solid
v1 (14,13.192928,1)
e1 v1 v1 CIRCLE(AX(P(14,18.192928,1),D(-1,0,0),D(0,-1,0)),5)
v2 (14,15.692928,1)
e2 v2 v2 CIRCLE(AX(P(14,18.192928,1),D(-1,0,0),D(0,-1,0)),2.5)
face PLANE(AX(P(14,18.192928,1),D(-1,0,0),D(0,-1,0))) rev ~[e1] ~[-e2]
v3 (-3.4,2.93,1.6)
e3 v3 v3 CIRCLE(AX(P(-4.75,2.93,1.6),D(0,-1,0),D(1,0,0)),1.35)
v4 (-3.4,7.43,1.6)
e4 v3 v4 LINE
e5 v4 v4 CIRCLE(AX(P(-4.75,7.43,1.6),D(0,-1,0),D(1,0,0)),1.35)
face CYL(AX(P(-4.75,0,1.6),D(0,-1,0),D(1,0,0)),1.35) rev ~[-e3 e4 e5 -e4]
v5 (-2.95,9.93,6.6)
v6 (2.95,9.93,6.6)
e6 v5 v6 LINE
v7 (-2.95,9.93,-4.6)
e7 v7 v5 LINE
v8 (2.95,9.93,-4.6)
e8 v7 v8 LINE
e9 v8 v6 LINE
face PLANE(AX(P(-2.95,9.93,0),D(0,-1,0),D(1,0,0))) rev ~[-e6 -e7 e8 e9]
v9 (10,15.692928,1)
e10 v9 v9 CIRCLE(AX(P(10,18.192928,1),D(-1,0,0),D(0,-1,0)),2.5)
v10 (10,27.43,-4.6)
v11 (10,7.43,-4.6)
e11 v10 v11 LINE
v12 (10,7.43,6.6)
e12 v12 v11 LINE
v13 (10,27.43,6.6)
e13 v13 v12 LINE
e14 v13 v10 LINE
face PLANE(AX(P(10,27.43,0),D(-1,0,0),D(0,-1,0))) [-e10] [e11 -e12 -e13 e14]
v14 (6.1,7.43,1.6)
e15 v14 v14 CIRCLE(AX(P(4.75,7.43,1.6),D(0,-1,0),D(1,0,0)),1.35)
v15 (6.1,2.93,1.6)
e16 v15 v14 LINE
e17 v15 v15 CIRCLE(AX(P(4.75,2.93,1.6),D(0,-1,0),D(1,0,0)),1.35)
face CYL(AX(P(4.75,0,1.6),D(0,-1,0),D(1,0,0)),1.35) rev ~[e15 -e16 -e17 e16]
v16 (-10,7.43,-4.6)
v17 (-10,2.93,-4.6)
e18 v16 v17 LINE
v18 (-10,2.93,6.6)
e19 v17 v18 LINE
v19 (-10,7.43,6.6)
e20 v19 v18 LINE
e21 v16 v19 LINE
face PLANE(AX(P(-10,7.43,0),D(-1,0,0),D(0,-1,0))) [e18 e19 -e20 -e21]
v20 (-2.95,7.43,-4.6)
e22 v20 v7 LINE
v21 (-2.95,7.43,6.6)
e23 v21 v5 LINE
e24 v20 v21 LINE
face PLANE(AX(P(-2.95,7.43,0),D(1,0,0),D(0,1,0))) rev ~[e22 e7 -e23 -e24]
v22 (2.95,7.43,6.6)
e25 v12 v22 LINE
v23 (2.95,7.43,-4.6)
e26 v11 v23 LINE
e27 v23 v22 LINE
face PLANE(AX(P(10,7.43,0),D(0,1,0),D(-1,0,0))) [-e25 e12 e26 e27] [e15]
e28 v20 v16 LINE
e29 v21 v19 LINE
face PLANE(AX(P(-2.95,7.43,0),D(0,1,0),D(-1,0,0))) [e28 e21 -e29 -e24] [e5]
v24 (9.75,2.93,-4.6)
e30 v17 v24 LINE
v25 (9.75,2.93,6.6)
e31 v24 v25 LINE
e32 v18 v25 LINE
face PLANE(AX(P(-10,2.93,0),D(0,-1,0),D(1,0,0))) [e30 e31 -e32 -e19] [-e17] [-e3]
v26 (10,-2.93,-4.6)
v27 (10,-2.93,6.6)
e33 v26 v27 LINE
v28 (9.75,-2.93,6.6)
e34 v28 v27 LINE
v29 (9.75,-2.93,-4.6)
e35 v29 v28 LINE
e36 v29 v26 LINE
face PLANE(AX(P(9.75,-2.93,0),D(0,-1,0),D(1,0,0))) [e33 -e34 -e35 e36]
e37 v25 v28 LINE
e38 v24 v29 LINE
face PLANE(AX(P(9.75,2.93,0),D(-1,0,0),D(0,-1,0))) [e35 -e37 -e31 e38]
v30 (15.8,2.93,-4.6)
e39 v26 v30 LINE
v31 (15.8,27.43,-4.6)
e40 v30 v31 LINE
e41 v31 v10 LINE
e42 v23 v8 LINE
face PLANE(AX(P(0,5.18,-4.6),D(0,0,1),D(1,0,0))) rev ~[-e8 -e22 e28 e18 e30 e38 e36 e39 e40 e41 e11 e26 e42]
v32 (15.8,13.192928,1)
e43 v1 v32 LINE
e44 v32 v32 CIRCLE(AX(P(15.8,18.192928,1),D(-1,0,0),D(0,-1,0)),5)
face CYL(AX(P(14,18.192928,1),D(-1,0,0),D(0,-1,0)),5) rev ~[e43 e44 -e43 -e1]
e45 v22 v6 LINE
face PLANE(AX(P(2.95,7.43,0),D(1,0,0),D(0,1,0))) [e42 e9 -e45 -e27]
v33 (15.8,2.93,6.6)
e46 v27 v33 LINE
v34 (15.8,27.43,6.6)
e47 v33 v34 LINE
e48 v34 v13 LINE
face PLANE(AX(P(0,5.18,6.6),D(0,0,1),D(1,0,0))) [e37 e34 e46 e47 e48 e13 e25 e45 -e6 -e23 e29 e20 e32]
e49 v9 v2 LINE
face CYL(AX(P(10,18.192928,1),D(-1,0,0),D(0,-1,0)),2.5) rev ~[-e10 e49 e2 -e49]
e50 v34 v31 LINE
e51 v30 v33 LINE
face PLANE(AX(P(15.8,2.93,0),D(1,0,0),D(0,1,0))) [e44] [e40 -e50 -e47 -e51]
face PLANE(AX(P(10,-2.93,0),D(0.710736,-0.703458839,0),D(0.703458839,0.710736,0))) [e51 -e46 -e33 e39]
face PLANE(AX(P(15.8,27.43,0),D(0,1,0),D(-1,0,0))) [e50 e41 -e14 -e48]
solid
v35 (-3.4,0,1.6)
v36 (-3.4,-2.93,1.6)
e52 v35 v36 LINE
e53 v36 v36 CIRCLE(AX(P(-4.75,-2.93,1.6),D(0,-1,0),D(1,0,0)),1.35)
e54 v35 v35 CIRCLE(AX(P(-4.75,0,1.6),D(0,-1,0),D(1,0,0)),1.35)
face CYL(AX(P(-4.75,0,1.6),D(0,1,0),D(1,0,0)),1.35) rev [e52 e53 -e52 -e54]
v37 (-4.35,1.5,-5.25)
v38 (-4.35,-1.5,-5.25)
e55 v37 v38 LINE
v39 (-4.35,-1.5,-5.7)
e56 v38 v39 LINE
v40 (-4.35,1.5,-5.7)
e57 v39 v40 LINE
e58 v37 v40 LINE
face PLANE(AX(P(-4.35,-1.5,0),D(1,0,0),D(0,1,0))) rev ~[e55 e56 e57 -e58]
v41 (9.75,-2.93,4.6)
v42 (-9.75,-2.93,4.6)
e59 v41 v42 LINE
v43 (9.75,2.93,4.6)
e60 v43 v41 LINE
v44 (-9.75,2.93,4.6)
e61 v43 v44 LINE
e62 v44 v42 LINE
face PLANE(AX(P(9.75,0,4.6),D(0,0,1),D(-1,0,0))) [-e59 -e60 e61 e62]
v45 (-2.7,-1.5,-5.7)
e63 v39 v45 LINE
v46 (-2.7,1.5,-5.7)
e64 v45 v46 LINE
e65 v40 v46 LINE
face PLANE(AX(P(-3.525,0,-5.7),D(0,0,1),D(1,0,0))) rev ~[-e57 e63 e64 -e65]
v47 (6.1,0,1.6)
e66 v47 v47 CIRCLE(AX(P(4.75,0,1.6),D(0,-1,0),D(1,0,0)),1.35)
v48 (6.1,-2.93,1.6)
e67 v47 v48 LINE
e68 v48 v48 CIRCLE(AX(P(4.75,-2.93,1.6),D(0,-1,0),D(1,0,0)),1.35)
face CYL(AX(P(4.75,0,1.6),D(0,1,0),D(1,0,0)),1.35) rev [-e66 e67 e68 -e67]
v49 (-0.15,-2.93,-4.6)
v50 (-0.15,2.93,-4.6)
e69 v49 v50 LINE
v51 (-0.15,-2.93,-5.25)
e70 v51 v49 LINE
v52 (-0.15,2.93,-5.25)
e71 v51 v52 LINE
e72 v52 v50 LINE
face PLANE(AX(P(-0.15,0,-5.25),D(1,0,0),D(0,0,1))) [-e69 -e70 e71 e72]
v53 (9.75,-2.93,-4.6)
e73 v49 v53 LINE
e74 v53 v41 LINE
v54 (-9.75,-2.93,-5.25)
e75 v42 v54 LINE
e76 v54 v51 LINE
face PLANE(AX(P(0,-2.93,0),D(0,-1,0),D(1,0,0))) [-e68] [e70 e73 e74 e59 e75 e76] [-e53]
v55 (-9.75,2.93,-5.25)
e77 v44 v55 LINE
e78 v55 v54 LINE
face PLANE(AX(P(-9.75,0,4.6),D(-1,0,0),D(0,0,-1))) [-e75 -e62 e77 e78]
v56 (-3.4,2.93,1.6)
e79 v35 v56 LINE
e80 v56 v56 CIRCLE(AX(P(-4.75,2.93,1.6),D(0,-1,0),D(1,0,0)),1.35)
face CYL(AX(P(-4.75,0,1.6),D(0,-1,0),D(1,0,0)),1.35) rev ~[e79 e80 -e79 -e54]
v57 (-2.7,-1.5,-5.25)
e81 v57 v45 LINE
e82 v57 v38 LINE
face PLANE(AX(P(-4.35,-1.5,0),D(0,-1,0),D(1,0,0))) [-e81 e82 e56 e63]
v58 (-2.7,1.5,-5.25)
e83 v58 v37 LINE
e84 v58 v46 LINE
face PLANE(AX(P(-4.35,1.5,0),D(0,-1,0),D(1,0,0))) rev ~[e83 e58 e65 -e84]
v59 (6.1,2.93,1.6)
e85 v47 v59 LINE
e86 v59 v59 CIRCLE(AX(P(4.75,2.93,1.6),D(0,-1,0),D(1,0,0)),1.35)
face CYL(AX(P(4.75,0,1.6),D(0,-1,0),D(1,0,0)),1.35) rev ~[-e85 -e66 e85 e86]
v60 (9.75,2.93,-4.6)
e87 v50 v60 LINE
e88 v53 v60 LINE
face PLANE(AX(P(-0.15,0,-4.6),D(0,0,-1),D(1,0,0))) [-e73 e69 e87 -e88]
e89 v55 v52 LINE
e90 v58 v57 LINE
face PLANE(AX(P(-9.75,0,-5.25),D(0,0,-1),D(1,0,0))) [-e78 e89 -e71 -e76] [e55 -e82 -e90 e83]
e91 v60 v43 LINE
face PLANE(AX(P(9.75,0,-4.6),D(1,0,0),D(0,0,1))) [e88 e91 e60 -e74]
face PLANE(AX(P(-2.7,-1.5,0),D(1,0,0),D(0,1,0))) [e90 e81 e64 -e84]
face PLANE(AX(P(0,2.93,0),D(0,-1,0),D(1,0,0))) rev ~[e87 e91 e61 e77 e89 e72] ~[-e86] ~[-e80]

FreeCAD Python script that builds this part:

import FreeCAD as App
import Part
import Sketcher
from FreeCAD import Vector
Q = App.Units.Quantity


def add_polygon(sketch, points):
    """Adds a closed chain of lines whose ends are joined by coincident constraints."""
    first, n = sketch.GeometryCount, len(points)
    for a, b in zip(points, points[1:] + points[:1]):
        sketch.addGeometry(Part.LineSegment(App.Vector(*a, 0), App.Vector(*b, 0)), False)
    for i in range(n):
        sketch.addConstraint(Sketcher.Constraint("Coincident", first + i, 2, first + (i + 1) % n, 1))

doc = App.newDocument("Part")
body = doc.addObject("PartDesign::Body", "Body")

# Sketch on XZ plane
sketch1 = body.newObject("Sketcher::SketchObject", "Sketch")
sketch1.AttachmentSupport = (doc.getObject("XZ_Plane"), [""])
sketch1.MapMode = "FlatFace"
add_polygon(sketch1, [(9.8, -4.6), (9.8, 4.6), (-9.8, 4.6), (-9.8, -5.2), (-0.1, -5.2), (-0.1, -4.6)])  # lines 0-5
sketch1.addGeometry(Part.Circle(Vector(-4.8, 1.6, 0), Vector(0, 0, 1), 1.4), False)  # 6
sketch1.addGeometry(Part.Circle(Vector(4.8, 1.6, 0), Vector(0, 0, 1), 1.4), False)  # 7
sketch1.addConstraint(Sketcher.Constraint("Vertical", 0))
sketch1.addConstraint(Sketcher.Constraint("Horizontal", 1))
sketch1.addConstraint(Sketcher.Constraint("Vertical", 2))
sketch1.addConstraint(Sketcher.Constraint("Horizontal", 3))
sketch1.addConstraint(Sketcher.Constraint("Vertical", 4))
sketch1.addConstraint(Sketcher.Constraint("Horizontal", 5))
sketch1.addConstraint(Sketcher.Constraint("Equal", 6, 7))
sketch1.addConstraint(Sketcher.Constraint("Symmetric", 1, 2, 5, 2, -1, 1))
sketch1.addConstraint(Sketcher.Constraint("Symmetric", 6, 3, 7, 3, -2))
sketch1.addConstraint(Sketcher.Constraint("Diameter", 6, Q("2.7 mm")))
sketch1.addConstraint(Sketcher.Constraint("DistanceX", 1, 2, 1, 1, Q("19.5 mm")))
sketch1.addConstraint(Sketcher.Constraint("DistanceX", 3, 1, 3, 2, Q("9.6 mm")))
sketch1.addConstraint(Sketcher.Constraint("DistanceY", 0, 1, 0, 2, Q("9.2 mm")))
sketch1.addConstraint(Sketcher.Constraint("DistanceX", 7, 3, 0, 2, Q("5 mm")))
sketch1.addConstraint(Sketcher.Constraint("DistanceY", 7, 3, 0, 2, Q("3 mm")))
sketch1.addConstraint(Sketcher.Constraint("DistanceY", 2, 2, 2, 1, Q("9.85 mm")))
pad1 = body.newObject("PartDesign::Pad", "Pad")
pad1.Profile = sketch1
pad1.Type = "TwoLengths"
pad1.Length = 2.93
pad1.Length2 = 2.93

# Sketch on XY plane
sketch2 = body.newObject("Sketcher::SketchObject", "Sketch001")
sketch2.AttachmentSupport = (doc.getObject("XY_Plane"), [""])
sketch2.MapMode = "FlatFace"
add_polygon(sketch2, [(-4.3, 1.5), (-4.3, -1.5), (-2.7, -1.5), (-2.7, 1.5)])  # lines 0-3
sketch2.addConstraint(Sketcher.Constraint("Vertical", 0))
sketch2.addConstraint(Sketcher.Constraint("Horizontal", 1))
sketch2.addConstraint(Sketcher.Constraint("Vertical", 2))
sketch2.addConstraint(Sketcher.Constraint("Horizontal", 3))
sketch2.addConstraint(Sketcher.Constraint("DistanceY", 0, 2, 0, 1, Q("3 mm")))
sketch2.addConstraint(Sketcher.Constraint("DistanceX", 1, 1, 1, 2, Q("1.65 mm")))
sketch2.addConstraint(Sketcher.Constraint("DistanceY", 0, 2, -1, 1, Q("1.5 mm")))
sketch2.addConstraint(Sketcher.Constraint("DistanceX", 1, 2, -1, 1, Q("2.7 mm")))
pad2 = body.newObject("PartDesign::Pad", "Pad001")
pad2.Profile = sketch2
pad2.Length = 5.7
pad2.Reversed = True
body2 = doc.addObject("PartDesign::Body", "Body001")

# Sketch on XY plane
sketch3 = body2.newObject("Sketcher::SketchObject", "Sketch002")
sketch3.AttachmentSupport = (doc.getObject("XY_Plane001"), [""])
sketch3.MapMode = "FlatFace"
add_polygon(sketch3, [(10, 7.43), (2.95, 7.43), (2.95, 9.93), (-2.95, 9.93), (-2.95, 7.43), (-10, 7.43), (-10, 2.93), (9.75, 2.93), (9.75, -2.93), (10, -2.93), (15.8, 2.93), (15.8, 27.43), (10, 27.43)])  # lines 0-12
sketch3.addConstraint(Sketcher.Constraint("Horizontal", 0))
sketch3.addConstraint(Sketcher.Constraint("Vertical", 1))
sketch3.addConstraint(Sketcher.Constraint("Horizontal", 2))
sketch3.addConstraint(Sketcher.Constraint("Vertical", 3))
sketch3.addConstraint(Sketcher.Constraint("Horizontal", 4))
sketch3.addConstraint(Sketcher.Constraint("Vertical", 5))
sketch3.addConstraint(Sketcher.Constraint("Horizontal", 6))
sketch3.addConstraint(Sketcher.Constraint("Vertical", 7))
sketch3.addConstraint(Sketcher.Constraint("Horizontal", 8))
sketch3.addConstraint(Sketcher.Constraint("Vertical", 10))
sketch3.addConstraint(Sketcher.Constraint("Horizontal", 11))
sketch3.addConstraint(Sketcher.Constraint("Vertical", 12))
sketch3.addConstraint(Sketcher.Constraint("Symmetric", 5, 2, 8, 2, -1, 1))
sketch3.addConstraint(Sketcher.Constraint("Symmetric", 0, 2, 3, 2, -2))
sketch3.addConstraint(Sketcher.Constraint("Horizontal", 6, 2, 9, 2))
sketch3.addConstraint(Sketcher.Constraint("Vertical", 8, 2, 11, 2))
sketch3.addConstraint(Sketcher.Constraint("DistanceY", 12, 2, 12, 1, Q("20 mm")))
sketch3.addConstraint(Sketcher.Constraint("DistanceX", 2, 2, 2, 1, Q("5.9 mm")))
sketch3.addConstraint(Sketcher.Constraint("DistanceX", 11, 2, 11, 1, Q("5.8 mm")))
sketch3.addConstraint(Sketcher.Constraint("DistanceY", 1, 1, 1, 2, Q("2.5 mm")))
sketch3.addConstraint(Sketcher.Constraint("DistanceY", 5, 2, 5, 1, Q("4.5 mm")))
sketch3.addConstraint(Sketcher.Constraint("DistanceX", 4, 2, -1, 1, Q("10 mm")))
sketch3.addConstraint(Sketcher.Constraint("DistanceX", 6, 1, 6, 2, Q("19.75 mm")))
sketch3.addConstraint(Sketcher.Constraint("DistanceY", 7, 2, 7, 1, Q("5.86 mm")))
pad3 = body2.newObject("PartDesign::Pad", "Pad002")
pad3.Profile = sketch3
pad3.Type = "TwoLengths"
pad3.Length = 6.6
pad3.Length2 = 4.6

# Sketch on XZ plane
sketch4 = body2.newObject("Sketcher::SketchObject", "Sketch003")
sketch4.AttachmentSupport = (doc.getObject("XZ_Plane001"), [""])
sketch4.MapMode = "FlatFace"
sketch4.addGeometry(Part.Circle(Vector(-4.8, 1.6, 0), Vector(0, 0, 1), 1.4), False)
sketch4.addGeometry(Part.Circle(Vector(4.8, 1.6, 0), Vector(0, 0, 1), 1.4), False)
sketch4.addConstraint(Sketcher.Constraint("Equal", 0, 1))
sketch4.addConstraint(Sketcher.Constraint("Symmetric", 0, 3, 1, 3, -2))
sketch4.addConstraint(Sketcher.Constraint("Diameter", 0, Q("2.7 mm")))
sketch4.addConstraint(Sketcher.Constraint("DistanceY", -1, 1, 0, 3, Q("1.6 mm")))
sketch4.addConstraint(Sketcher.Constraint("DistanceX", 0, 3, 1, 3, Q("9.5 mm")))
pocket1 = body2.newObject("PartDesign::Pocket", "Pocket")
pocket1.Profile = sketch4
pocket1.Length = 25

# Sketch on YZ plane
sketch5 = body2.newObject("Sketcher::SketchObject", "Sketch004")
sketch5.AttachmentSupport = (doc.getObject("YZ_Plane001"), [""])
sketch5.MapMode = "FlatFace"
sketch5.AttachmentOffset = App.Placement(Vector(0, 0, 10), App.Rotation())
sketch5.addGeometry(Part.Circle(Vector(18.2, 1, 0), Vector(0, 0, 1), 2.5), False)
sketch5.addConstraint(Sketcher.Constraint("Diameter", 0, Q("5 mm")))
sketch5.addConstraint(Sketcher.Constraint("DistanceY", -1, 1, 0, 3, Q("1 mm")))
sketch5.addConstraint(Sketcher.Constraint("DistanceX", -1, 1, 0, 3, Q("18.192928 mm")))
pocket2 = body2.newObject("PartDesign::Pocket", "Pocket001")
pocket2.Profile = sketch5
pocket2.Length = 25
pocket2.Reversed = True

# Sketch on YZ plane
sketch6 = body2.newObject("Sketcher::SketchObject", "Sketch005")
sketch6.AttachmentSupport = (doc.getObject("YZ_Plane001"), [""])
sketch6.MapMode = "FlatFace"
sketch6.AttachmentOffset = App.Placement(Vector(0, 0, 14), App.Rotation())
sketch6.addGeometry(Part.Circle(Vector(18.2, 1, 0), Vector(0, 0, 1), 5), False)
sketch6.addGeometry(Part.Circle(Vector(18.2, 1, 0), Vector(0, 0, 1), 2.5), False)
sketch6.addConstraint(Sketcher.Constraint("Coincident", 1, 3, 0, 3))
sketch6.addConstraint(Sketcher.Constraint("Diameter", 0, Q("10 mm")))
sketch6.addConstraint(Sketcher.Constraint("Diameter", 1, Q("5 mm")))
sketch6.addConstraint(Sketcher.Constraint("DistanceY", -1, 1, 0, 3, Q("1 mm")))
sketch6.addConstraint(Sketcher.Constraint("DistanceX", -1, 1, 0, 3, Q("18.192928 mm")))
pocket3 = body2.newObject("PartDesign::Pocket", "Pocket002")
pocket3.Profile = sketch6
pocket3.Length = 21
pocket3.Reversed = True

doc.recompute()
